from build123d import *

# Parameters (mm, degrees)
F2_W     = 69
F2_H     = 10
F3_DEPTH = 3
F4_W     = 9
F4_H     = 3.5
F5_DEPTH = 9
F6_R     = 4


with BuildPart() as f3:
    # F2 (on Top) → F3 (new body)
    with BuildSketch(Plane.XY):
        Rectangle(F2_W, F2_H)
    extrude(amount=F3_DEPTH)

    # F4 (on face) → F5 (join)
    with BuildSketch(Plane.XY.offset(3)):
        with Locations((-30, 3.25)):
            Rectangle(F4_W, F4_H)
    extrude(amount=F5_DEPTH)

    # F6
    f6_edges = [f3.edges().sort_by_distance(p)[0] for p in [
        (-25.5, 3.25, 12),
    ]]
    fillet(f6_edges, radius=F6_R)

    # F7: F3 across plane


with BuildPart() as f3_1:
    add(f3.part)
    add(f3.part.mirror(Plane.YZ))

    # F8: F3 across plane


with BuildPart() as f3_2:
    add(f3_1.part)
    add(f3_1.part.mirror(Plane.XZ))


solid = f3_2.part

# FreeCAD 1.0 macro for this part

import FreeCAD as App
import Part
import Sketcher
from FreeCAD import Vector
Q = App.Units.Quantity


def edges_at(feature, points):
    """Names of the edges that pass closest to the given points."""
    edges = feature.Shape.Edges
    near = lambda p: min(range(len(edges)), key=lambda i: edges[i].distToShape(Part.Vertex(*p))[0])
    return sorted({f"Edge{near(p) + 1}" for p in points})


def add_polygon(sketch, points):
    """Adds a closed chain of lines whose ends are joined by coincident constraints."""
    first, n = sketch.GeometryCount, len(points)
    for a, b in zip(points, points[1:] + points[:1]):
        sketch.addGeometry(Part.LineSegment(App.Vector(*a, 0), App.Vector(*b, 0)), False)
    for i in range(n):
        sketch.addConstraint(Sketcher.Constraint("Coincident", first + i, 2, first + (i + 1) % n, 1))

doc = App.newDocument("Part")
params = doc.addObject("Spreadsheet::Sheet", "Params")
for row, (alias, value) in enumerate([
    ("sketch1_width", "69 mm"),
    ("sketch1_height", "10 mm"),
    ("pad1_length", "3 mm"),
    ("sketch2_width", "9 mm"),
    ("sketch2_height", "3.5 mm"),
    ("pad2_length", "9 mm"),
    ("fillet_radius", "4 mm"),
], start=1):
    params.set(f"A{row}", alias)
    params.set(f"B{row}", "=" + value)
    params.setAlias(f"B{row}", alias)

body = doc.addObject("PartDesign::Body", "Body")

sketch1 = body.newObject("Sketcher::SketchObject", "Sketch")
sketch1.AttachmentSupport = (doc.getObject("XY_Plane"), [""])
sketch1.MapMode = "FlatFace"
add_polygon(sketch1, [(-34, 5), (-34, -5), (34, -5), (34, 5)])
sketch1.addConstraint([
    Sketcher.Constraint("Vertical", 0),
    Sketcher.Constraint("Horizontal", 1),
    Sketcher.Constraint("Vertical", 2),
    Sketcher.Constraint("Horizontal", 3),
    Sketcher.Constraint("Symmetric", 0, 2, 2, 2, -1, 1),
    Sketcher.Constraint("DistanceX", 1, 1, 1, 2, Q("69 mm")),
    Sketcher.Constraint("DistanceY", 0, 2, 0, 1, Q("10 mm")),
])
sketch1.setExpression("Constraints[9]", "Params.sketch1_width")
sketch1.setExpression("Constraints[10]", "Params.sketch1_height")
pad1 = body.newObject("PartDesign::Pad", "Pad")
pad1.Profile = sketch1
pad1.setExpression("Length", "Params.pad1_length")

sketch2 = body.newObject("Sketcher::SketchObject", "Sketch001")
sketch2.AttachmentSupport = (doc.getObject("XY_Plane"), [""])
sketch2.MapMode = "FlatFace"
sketch2.AttachmentOffset = App.Placement(Vector(0, 0, 3), App.Rotation())
add_polygon(sketch2, [(-34.5, 5), (-34.5, 1.5), (-25.5, 1.5), (-25.5, 5)])
sketch2.addConstraint([
    Sketcher.Constraint("Vertical", 0),
    Sketcher.Constraint("Horizontal", 1),
    Sketcher.Constraint("Vertical", 2),
    Sketcher.Constraint("Horizontal", 3),
    Sketcher.Constraint("DistanceX", 1, 1, 1, 2, Q("9 mm")),
    Sketcher.Constraint("DistanceY", 0, 2, 0, 1, Q("3.5 mm")),
    Sketcher.Constraint("DistanceY", -1, 1, 2, 2, Q("5 mm")),
    Sketcher.Constraint("DistanceX", 0, 2, -1, 1, Q("34.5 mm")),
])
sketch2.setExpression("Constraints[8]", "Params.sketch2_width")
sketch2.setExpression("Constraints[9]", "Params.sketch2_height")
pad2 = body.newObject("PartDesign::Pad", "Pad001")
pad2.Profile = sketch2
pad2.setExpression("Length", "Params.pad2_length")
doc.recompute()

fillet = body.newObject("PartDesign::Fillet", "Fillet")
fillet.Base = (pad2, edges_at(pad2, [(-25.5, 3.25, 12)]))
fillet.setExpression("Radius", "Params.fillet_radius")
body2 = doc.addObject("PartDesign::Body", "Body001")
doc.recompute()

body2.BaseFeature = body
doc.recompute()

mirroring = doc.addObject("Part::Mirroring", "Mirroring")
mirroring.Source = body
mirroring.Base = Vector(0, 0, 0)
mirroring.Normal = Vector(1, 0, 0)
body3 = doc.addObject("PartDesign::Body", "Body002")
body3.BaseFeature = mirroring
boolean = body2.newObject("PartDesign::Boolean", "Boolean")
boolean.Type = "Fuse"
boolean.addObjects([body3])
doc.recompute()
body4 = doc.addObject("PartDesign::Body", "Body003")
doc.recompute()

body4.BaseFeature = body2
doc.recompute()

mirroring2 = doc.addObject("Part::Mirroring", "Mirroring001")
mirroring2.Source = body2
mirroring2.Base = Vector(0, 0, 0)
mirroring2.Normal = Vector(0, -1, 0)
body5 = doc.addObject("PartDesign::Body", "Body004")
body5.BaseFeature = mirroring2
boolean2 = body4.newObject("PartDesign::Boolean", "Boolean001")
boolean2.Type = "Fuse"
boolean2.addObjects([body5])
doc.recompute()
mirroring.Visibility = False
mirroring2.Visibility = False

doc.recompute()
